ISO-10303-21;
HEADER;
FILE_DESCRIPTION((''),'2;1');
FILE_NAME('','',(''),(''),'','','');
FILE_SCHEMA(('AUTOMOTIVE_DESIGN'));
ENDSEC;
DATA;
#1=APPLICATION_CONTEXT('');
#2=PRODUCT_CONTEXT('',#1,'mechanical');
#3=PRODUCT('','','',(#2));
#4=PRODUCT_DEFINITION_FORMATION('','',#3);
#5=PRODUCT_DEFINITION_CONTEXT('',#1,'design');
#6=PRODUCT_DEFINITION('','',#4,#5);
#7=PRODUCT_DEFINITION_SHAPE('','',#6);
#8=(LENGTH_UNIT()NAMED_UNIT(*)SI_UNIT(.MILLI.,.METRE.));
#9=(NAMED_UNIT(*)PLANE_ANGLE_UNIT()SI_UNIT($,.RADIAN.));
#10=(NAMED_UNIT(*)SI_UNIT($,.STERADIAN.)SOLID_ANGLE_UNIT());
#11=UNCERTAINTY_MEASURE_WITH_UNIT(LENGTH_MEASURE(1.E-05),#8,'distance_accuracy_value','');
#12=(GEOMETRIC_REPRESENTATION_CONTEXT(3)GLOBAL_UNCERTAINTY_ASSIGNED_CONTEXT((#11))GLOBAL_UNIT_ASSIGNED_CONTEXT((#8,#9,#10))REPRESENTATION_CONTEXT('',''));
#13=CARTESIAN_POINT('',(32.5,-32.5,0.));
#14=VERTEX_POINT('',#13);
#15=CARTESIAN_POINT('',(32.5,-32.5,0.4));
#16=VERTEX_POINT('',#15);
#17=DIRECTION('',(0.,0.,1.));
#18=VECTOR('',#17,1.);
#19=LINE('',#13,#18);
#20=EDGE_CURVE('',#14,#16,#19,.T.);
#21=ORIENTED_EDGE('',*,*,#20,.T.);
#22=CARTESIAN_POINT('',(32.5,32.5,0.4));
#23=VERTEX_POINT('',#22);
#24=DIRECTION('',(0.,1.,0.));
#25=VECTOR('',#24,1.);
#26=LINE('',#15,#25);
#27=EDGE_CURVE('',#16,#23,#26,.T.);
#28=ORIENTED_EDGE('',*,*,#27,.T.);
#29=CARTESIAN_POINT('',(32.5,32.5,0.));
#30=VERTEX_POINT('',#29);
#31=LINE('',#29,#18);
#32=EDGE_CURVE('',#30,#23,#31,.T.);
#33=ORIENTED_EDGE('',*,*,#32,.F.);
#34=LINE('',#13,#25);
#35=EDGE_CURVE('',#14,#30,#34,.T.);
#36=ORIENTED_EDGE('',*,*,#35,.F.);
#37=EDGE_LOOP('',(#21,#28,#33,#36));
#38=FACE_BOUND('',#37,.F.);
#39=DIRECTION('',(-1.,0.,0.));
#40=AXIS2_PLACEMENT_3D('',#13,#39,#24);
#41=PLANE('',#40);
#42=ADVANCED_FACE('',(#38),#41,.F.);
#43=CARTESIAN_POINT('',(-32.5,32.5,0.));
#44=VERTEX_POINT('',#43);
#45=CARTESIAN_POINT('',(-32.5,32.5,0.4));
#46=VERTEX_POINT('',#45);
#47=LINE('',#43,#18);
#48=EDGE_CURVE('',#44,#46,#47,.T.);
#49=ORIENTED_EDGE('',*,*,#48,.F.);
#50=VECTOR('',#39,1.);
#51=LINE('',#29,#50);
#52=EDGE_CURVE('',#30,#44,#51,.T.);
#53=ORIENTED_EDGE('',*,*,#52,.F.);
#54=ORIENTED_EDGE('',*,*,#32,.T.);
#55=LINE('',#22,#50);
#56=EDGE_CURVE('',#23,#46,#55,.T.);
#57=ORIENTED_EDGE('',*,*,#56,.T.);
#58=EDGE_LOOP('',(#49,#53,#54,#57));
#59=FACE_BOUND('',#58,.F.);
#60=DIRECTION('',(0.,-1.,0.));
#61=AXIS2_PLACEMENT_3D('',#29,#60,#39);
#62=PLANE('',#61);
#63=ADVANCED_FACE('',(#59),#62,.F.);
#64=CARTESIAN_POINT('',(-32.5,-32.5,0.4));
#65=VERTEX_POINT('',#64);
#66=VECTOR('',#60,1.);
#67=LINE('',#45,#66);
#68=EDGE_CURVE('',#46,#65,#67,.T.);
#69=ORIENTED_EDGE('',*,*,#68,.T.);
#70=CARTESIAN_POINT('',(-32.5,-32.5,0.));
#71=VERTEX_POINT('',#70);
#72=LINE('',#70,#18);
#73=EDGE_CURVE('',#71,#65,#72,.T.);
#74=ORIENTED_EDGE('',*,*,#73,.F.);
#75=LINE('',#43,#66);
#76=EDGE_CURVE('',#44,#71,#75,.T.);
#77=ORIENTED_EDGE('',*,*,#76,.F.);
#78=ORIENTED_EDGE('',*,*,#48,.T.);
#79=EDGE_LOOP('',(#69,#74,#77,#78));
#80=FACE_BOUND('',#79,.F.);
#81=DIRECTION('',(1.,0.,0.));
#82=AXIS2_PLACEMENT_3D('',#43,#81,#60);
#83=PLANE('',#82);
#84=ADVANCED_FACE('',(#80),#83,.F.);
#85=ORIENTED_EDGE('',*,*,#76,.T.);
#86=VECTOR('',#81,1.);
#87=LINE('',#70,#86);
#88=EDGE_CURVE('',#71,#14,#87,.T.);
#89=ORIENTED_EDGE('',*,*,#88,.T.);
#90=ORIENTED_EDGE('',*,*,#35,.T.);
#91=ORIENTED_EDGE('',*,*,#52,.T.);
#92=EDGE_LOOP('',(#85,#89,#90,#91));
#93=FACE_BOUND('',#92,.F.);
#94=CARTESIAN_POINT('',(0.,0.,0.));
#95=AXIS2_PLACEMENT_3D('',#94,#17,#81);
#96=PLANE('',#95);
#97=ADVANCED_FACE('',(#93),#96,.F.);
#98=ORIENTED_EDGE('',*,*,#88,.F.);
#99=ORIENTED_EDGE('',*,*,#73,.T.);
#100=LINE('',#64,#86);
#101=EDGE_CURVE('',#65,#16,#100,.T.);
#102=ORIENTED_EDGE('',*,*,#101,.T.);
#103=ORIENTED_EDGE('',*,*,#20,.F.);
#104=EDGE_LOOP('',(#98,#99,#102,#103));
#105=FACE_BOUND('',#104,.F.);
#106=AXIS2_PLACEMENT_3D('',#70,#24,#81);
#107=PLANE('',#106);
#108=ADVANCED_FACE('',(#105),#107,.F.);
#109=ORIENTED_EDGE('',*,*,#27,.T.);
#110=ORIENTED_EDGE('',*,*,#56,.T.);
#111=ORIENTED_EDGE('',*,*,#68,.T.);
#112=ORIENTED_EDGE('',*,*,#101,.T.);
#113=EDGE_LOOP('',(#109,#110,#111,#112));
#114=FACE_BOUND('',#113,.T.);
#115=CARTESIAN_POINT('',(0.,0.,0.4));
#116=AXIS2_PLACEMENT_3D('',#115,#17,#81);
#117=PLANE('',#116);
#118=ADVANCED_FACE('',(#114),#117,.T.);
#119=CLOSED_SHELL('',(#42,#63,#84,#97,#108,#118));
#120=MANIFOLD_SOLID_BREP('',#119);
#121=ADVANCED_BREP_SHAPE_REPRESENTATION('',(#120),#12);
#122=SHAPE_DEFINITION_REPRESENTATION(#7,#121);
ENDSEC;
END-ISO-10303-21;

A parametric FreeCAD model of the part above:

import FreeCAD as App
import Part
import Sketcher


def add_polygon(sketch, points):
    """Adds a closed chain of lines whose ends are joined by coincident constraints."""
    first, n = sketch.GeometryCount, len(points)
    for a, b in zip(points, points[1:] + points[:1]):
        sketch.addGeometry(Part.LineSegment(App.Vector(*a, 0), App.Vector(*b, 0)), False)
    for i in range(n):
        sketch.addConstraint(Sketcher.Constraint("Coincident", first + i, 2, first + (i + 1) % n, 1))

doc = App.newDocument("Part")
body = doc.addObject("PartDesign::Body", "Body")

# Sketch on XY plane
sketch1 = body.newObject("Sketcher::SketchObject", "Sketch")
sketch1.AttachmentSupport = (doc.getObject("XY_Plane"), [""])
sketch1.MapMode = "FlatFace"
add_polygon(sketch1, [(32, -32), (32, 32), (-32, 32), (-32, -32)])  # lines 0-3
sketch1.addConstraint([
    Sketcher.Constraint("Vertical", 0),
    Sketcher.Constraint("Horizontal", 1),
    Sketcher.Constraint("Vertical", 2),
    Sketcher.Constraint("Horizontal", 3),
    Sketcher.Constraint("Symmetric", 0, 2, 2, 2, -1, 1),
    Sketcher.Constraint("Equal", 3, 0),
    Sketcher.Constraint("DistanceX", 1, 2, 1, 1, 65.0),
])
pad1 = body.newObject("PartDesign::Pad", "Pad")
pad1.Profile = sketch1
pad1.Length = 0.4

doc.recompute()
